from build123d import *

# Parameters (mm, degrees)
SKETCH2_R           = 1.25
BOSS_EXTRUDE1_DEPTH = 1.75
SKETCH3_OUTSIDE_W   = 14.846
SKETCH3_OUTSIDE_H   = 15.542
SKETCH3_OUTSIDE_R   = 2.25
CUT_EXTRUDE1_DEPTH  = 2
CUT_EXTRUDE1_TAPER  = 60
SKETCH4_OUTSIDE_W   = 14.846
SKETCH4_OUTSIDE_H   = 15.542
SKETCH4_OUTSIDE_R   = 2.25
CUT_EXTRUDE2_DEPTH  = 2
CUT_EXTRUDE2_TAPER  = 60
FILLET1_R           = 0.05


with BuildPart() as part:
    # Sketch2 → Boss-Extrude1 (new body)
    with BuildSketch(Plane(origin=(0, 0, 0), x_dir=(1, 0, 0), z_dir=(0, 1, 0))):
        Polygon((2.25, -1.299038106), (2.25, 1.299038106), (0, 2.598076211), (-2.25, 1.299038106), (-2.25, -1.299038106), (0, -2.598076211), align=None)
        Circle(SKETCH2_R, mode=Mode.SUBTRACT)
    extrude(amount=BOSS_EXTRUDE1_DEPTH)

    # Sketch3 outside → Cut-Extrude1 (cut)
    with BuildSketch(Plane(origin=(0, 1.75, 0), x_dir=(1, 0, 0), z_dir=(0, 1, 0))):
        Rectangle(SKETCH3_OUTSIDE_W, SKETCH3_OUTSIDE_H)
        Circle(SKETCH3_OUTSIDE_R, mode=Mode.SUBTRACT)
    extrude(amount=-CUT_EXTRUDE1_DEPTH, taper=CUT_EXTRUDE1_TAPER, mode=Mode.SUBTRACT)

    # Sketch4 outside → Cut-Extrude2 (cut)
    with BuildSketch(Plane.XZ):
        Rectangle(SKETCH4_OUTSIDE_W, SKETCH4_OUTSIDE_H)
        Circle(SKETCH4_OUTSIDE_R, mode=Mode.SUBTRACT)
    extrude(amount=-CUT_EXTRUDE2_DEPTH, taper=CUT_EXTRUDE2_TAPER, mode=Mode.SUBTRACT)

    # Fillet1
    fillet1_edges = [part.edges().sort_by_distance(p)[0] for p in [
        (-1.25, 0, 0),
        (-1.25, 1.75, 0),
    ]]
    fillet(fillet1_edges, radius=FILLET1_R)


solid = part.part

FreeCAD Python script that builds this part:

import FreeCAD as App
import Part
import Sketcher

V = App.Vector
Q = App.Units.Quantity


def edges_at(feature, points):
    """Names of the edges that pass closest to the given points."""
    edges = feature.Shape.Edges
    near = lambda p: min(range(len(edges)), key=lambda i: edges[i].distToShape(Part.Vertex(*p))[0])
    return sorted({f"Edge{near(p) + 1}" for p in points})

doc = App.newDocument("Part")
body = doc.addObject("PartDesign::Body", "Body")

sketch1 = doc.addObject("Sketcher::SketchObject", "Sketch")
body.addObject(sketch1)
sketch1.AttachmentSupport = (doc.XZ_Plane, [""])
sketch1.MapMode = "FlatFace"
sketch1.addGeometry(Part.LineSegment(V(2.25, 1.299038, 0), V(2.25, -1.299038, 0)), False)
sketch1.addGeometry(Part.LineSegment(V(2.25, -1.299038, 0), V(0, -2.598076, 0)), False)
sketch1.addGeometry(Part.LineSegment(V(0, -2.598076, 0), V(-2.25, -1.299038, 0)), False)
sketch1.addGeometry(Part.LineSegment(V(-2.25, -1.299038, 0), V(-2.25, 1.299038, 0)), False)
sketch1.addGeometry(Part.LineSegment(V(-2.25, 1.299038, 0), V(0, 2.598076, 0)), False)
sketch1.addGeometry(Part.LineSegment(V(0, 2.598076, 0), V(2.25, 1.299038, 0)), False)
sketch1.addGeometry(Part.Circle(V(0, 0, 0), V(0, 0, 1), 1.25), False)
sketch1.addConstraint(Sketcher.Constraint("Coincident", 0, 2, 1, 1))
sketch1.addConstraint(Sketcher.Constraint("Coincident", 1, 2, 2, 1))
sketch1.addConstraint(Sketcher.Constraint("Coincident", 2, 2, 3, 1))
sketch1.addConstraint(Sketcher.Constraint("Coincident", 3, 2, 4, 1))
sketch1.addConstraint(Sketcher.Constraint("Coincident", 4, 2, 5, 1))
sketch1.addConstraint(Sketcher.Constraint("Coincident", 5, 2, 0, 1))
sketch1.addConstraint(Sketcher.Constraint("Vertical", 0))
sketch1.addConstraint(Sketcher.Constraint("Vertical", 3))
sketch1.addConstraint(Sketcher.Constraint("Coincident", 6, 3, -1, 1))
sketch1.addConstraint(Sketcher.Constraint("Symmetric", 0, 2, 3, 2, -1, 1))
sketch1.addConstraint(Sketcher.Constraint("Symmetric", 1, 2, 4, 2, -1, 1))
sketch1.addConstraint(Sketcher.Constraint("PointOnObject", 1, 2, -2))
sketch1.addConstraint(Sketcher.Constraint("Parallel", 2, 5))
sketch1.addConstraint(Sketcher.Constraint("Horizontal", 0, 2, 2, 2))
sketch1.addConstraint(Sketcher.Constraint("Diameter", 6, 2.5))
sketch1.addConstraint(Sketcher.Constraint("Angle", 1, Q("-150 deg")))
sketch1.addConstraint(Sketcher.Constraint("DistanceX", 2, 2, 0, 2, 4.5))
sketch1.addConstraint(Sketcher.Constraint("DistanceY", 0, 2, 0, 1, 2.598076))
pad1 = doc.addObject("PartDesign::Pad", "Pad")
body.addObject(pad1)
pad1.Profile = sketch1
pad1.Length = 1.75
pad1.Reversed = True

sketch2 = doc.addObject("Sketcher::SketchObject", "Sketch001")
body.addObject(sketch2)
sketch2.AttachmentSupport = (doc.XZ_Plane, [""])
sketch2.MapMode = "FlatFace"
sketch2.AttachmentOffset = App.Placement(V(0, 0, -1.75), App.Rotation())
sketch2.addGeometry(Part.LineSegment(V(-7.423, -7.771, 0), V(-7.423, 7.771, 0)), False)
sketch2.addGeometry(Part.LineSegment(V(-7.423, 7.771, 0), V(7.423, 7.771, 0)), False)
sketch2.addGeometry(Part.LineSegment(V(7.423, 7.771, 0), V(7.423, -7.771, 0)), False)
sketch2.addGeometry(Part.LineSegment(V(7.423, -7.771, 0), V(-7.423, -7.771, 0)), False)
sketch2.addGeometry(Part.Circle(V(0, 0, 0), V(0, 0, 1), 2.25), False)
sketch2.addConstraint(Sketcher.Constraint("Coincident", 0, 2, 1, 1))
sketch2.addConstraint(Sketcher.Constraint("Coincident", 1, 2, 2, 1))
sketch2.addConstraint(Sketcher.Constraint("Coincident", 2, 2, 3, 1))
sketch2.addConstraint(Sketcher.Constraint("Coincident", 3, 2, 0, 1))
sketch2.addConstraint(Sketcher.Constraint("Vertical", 0))
sketch2.addConstraint(Sketcher.Constraint("Horizontal", 1))
sketch2.addConstraint(Sketcher.Constraint("Vertical", 2))
sketch2.addConstraint(Sketcher.Constraint("Horizontal", 3))
sketch2.addConstraint(Sketcher.Constraint("Coincident", 4, 3, -1, 1))
sketch2.addConstraint(Sketcher.Constraint("Symmetric", 0, 2, 2, 2, -1, 1))
sketch2.addConstraint(Sketcher.Constraint("Diameter", 4, 4.5))
sketch2.addConstraint(Sketcher.Constraint("DistanceX", 1, 1, 1, 2, 14.846))
sketch2.addConstraint(Sketcher.Constraint("DistanceY", 0, 1, 0, 2, 15.542))
pocket1 = doc.addObject("PartDesign::Pocket", "Pocket")
body.addObject(pocket1)
pocket1.Profile = sketch2
pocket1.Length = 2
pocket1.Reversed = True
pocket1.TaperAngle = 60

sketch3 = doc.addObject("Sketcher::SketchObject", "Sketch002")
body.addObject(sketch3)
sketch3.AttachmentSupport = (doc.XZ_Plane, [""])
sketch3.MapMode = "FlatFace"
sketch3.addGeometry(Part.LineSegment(V(-7.423, 7.771, 0), V(-7.423, -7.771, 0)), False)
sketch3.addGeometry(Part.LineSegment(V(-7.423, -7.771, 0), V(7.423, -7.771, 0)), False)
sketch3.addGeometry(Part.LineSegment(V(7.423, -7.771, 0), V(7.423, 7.771, 0)), False)
sketch3.addGeometry(Part.LineSegment(V(7.423, 7.771, 0), V(-7.423, 7.771, 0)), False)
sketch3.addGeometry(Part.Circle(V(0, 0, 0), V(0, 0, 1), 2.25), False)
sketch3.addConstraint(Sketcher.Constraint("Coincident", 0, 2, 1, 1))
sketch3.addConstraint(Sketcher.Constraint("Coincident", 1, 2, 2, 1))
sketch3.addConstraint(Sketcher.Constraint("Coincident", 2, 2, 3, 1))
sketch3.addConstraint(Sketcher.Constraint("Coincident", 3, 2, 0, 1))
sketch3.addConstraint(Sketcher.Constraint("Vertical", 0))
sketch3.addConstraint(Sketcher.Constraint("Horizontal", 1))
sketch3.addConstraint(Sketcher.Constraint("Vertical", 2))
sketch3.addConstraint(Sketcher.Constraint("Horizontal", 3))
sketch3.addConstraint(Sketcher.Constraint("Coincident", 4, 3, -1, 1))
sketch3.addConstraint(Sketcher.Constraint("Symmetric", 0, 2, 2, 2, -1, 1))
sketch3.addConstraint(Sketcher.Constraint("Diameter", 4, 4.5))
sketch3.addConstraint(Sketcher.Constraint("DistanceX", 1, 1, 1, 2, 14.846))
sketch3.addConstraint(Sketcher.Constraint("DistanceY", 0, 2, 0, 1, 15.542))
pocket2 = doc.addObject("PartDesign::Pocket", "Pocket001")
body.addObject(pocket2)
pocket2.Profile = sketch3
pocket2.Length = 2
pocket2.TaperAngle = 60
doc.recompute()

fillet = doc.addObject("PartDesign::Fillet", "Fillet")
body.addObject(fillet)
fillet.Base = (pocket2, edges_at(pocket2, [(-1.25, 0, 0), (-1.25, 1.75, 0)]))
fillet.Radius = 0.05

doc.recompute()
